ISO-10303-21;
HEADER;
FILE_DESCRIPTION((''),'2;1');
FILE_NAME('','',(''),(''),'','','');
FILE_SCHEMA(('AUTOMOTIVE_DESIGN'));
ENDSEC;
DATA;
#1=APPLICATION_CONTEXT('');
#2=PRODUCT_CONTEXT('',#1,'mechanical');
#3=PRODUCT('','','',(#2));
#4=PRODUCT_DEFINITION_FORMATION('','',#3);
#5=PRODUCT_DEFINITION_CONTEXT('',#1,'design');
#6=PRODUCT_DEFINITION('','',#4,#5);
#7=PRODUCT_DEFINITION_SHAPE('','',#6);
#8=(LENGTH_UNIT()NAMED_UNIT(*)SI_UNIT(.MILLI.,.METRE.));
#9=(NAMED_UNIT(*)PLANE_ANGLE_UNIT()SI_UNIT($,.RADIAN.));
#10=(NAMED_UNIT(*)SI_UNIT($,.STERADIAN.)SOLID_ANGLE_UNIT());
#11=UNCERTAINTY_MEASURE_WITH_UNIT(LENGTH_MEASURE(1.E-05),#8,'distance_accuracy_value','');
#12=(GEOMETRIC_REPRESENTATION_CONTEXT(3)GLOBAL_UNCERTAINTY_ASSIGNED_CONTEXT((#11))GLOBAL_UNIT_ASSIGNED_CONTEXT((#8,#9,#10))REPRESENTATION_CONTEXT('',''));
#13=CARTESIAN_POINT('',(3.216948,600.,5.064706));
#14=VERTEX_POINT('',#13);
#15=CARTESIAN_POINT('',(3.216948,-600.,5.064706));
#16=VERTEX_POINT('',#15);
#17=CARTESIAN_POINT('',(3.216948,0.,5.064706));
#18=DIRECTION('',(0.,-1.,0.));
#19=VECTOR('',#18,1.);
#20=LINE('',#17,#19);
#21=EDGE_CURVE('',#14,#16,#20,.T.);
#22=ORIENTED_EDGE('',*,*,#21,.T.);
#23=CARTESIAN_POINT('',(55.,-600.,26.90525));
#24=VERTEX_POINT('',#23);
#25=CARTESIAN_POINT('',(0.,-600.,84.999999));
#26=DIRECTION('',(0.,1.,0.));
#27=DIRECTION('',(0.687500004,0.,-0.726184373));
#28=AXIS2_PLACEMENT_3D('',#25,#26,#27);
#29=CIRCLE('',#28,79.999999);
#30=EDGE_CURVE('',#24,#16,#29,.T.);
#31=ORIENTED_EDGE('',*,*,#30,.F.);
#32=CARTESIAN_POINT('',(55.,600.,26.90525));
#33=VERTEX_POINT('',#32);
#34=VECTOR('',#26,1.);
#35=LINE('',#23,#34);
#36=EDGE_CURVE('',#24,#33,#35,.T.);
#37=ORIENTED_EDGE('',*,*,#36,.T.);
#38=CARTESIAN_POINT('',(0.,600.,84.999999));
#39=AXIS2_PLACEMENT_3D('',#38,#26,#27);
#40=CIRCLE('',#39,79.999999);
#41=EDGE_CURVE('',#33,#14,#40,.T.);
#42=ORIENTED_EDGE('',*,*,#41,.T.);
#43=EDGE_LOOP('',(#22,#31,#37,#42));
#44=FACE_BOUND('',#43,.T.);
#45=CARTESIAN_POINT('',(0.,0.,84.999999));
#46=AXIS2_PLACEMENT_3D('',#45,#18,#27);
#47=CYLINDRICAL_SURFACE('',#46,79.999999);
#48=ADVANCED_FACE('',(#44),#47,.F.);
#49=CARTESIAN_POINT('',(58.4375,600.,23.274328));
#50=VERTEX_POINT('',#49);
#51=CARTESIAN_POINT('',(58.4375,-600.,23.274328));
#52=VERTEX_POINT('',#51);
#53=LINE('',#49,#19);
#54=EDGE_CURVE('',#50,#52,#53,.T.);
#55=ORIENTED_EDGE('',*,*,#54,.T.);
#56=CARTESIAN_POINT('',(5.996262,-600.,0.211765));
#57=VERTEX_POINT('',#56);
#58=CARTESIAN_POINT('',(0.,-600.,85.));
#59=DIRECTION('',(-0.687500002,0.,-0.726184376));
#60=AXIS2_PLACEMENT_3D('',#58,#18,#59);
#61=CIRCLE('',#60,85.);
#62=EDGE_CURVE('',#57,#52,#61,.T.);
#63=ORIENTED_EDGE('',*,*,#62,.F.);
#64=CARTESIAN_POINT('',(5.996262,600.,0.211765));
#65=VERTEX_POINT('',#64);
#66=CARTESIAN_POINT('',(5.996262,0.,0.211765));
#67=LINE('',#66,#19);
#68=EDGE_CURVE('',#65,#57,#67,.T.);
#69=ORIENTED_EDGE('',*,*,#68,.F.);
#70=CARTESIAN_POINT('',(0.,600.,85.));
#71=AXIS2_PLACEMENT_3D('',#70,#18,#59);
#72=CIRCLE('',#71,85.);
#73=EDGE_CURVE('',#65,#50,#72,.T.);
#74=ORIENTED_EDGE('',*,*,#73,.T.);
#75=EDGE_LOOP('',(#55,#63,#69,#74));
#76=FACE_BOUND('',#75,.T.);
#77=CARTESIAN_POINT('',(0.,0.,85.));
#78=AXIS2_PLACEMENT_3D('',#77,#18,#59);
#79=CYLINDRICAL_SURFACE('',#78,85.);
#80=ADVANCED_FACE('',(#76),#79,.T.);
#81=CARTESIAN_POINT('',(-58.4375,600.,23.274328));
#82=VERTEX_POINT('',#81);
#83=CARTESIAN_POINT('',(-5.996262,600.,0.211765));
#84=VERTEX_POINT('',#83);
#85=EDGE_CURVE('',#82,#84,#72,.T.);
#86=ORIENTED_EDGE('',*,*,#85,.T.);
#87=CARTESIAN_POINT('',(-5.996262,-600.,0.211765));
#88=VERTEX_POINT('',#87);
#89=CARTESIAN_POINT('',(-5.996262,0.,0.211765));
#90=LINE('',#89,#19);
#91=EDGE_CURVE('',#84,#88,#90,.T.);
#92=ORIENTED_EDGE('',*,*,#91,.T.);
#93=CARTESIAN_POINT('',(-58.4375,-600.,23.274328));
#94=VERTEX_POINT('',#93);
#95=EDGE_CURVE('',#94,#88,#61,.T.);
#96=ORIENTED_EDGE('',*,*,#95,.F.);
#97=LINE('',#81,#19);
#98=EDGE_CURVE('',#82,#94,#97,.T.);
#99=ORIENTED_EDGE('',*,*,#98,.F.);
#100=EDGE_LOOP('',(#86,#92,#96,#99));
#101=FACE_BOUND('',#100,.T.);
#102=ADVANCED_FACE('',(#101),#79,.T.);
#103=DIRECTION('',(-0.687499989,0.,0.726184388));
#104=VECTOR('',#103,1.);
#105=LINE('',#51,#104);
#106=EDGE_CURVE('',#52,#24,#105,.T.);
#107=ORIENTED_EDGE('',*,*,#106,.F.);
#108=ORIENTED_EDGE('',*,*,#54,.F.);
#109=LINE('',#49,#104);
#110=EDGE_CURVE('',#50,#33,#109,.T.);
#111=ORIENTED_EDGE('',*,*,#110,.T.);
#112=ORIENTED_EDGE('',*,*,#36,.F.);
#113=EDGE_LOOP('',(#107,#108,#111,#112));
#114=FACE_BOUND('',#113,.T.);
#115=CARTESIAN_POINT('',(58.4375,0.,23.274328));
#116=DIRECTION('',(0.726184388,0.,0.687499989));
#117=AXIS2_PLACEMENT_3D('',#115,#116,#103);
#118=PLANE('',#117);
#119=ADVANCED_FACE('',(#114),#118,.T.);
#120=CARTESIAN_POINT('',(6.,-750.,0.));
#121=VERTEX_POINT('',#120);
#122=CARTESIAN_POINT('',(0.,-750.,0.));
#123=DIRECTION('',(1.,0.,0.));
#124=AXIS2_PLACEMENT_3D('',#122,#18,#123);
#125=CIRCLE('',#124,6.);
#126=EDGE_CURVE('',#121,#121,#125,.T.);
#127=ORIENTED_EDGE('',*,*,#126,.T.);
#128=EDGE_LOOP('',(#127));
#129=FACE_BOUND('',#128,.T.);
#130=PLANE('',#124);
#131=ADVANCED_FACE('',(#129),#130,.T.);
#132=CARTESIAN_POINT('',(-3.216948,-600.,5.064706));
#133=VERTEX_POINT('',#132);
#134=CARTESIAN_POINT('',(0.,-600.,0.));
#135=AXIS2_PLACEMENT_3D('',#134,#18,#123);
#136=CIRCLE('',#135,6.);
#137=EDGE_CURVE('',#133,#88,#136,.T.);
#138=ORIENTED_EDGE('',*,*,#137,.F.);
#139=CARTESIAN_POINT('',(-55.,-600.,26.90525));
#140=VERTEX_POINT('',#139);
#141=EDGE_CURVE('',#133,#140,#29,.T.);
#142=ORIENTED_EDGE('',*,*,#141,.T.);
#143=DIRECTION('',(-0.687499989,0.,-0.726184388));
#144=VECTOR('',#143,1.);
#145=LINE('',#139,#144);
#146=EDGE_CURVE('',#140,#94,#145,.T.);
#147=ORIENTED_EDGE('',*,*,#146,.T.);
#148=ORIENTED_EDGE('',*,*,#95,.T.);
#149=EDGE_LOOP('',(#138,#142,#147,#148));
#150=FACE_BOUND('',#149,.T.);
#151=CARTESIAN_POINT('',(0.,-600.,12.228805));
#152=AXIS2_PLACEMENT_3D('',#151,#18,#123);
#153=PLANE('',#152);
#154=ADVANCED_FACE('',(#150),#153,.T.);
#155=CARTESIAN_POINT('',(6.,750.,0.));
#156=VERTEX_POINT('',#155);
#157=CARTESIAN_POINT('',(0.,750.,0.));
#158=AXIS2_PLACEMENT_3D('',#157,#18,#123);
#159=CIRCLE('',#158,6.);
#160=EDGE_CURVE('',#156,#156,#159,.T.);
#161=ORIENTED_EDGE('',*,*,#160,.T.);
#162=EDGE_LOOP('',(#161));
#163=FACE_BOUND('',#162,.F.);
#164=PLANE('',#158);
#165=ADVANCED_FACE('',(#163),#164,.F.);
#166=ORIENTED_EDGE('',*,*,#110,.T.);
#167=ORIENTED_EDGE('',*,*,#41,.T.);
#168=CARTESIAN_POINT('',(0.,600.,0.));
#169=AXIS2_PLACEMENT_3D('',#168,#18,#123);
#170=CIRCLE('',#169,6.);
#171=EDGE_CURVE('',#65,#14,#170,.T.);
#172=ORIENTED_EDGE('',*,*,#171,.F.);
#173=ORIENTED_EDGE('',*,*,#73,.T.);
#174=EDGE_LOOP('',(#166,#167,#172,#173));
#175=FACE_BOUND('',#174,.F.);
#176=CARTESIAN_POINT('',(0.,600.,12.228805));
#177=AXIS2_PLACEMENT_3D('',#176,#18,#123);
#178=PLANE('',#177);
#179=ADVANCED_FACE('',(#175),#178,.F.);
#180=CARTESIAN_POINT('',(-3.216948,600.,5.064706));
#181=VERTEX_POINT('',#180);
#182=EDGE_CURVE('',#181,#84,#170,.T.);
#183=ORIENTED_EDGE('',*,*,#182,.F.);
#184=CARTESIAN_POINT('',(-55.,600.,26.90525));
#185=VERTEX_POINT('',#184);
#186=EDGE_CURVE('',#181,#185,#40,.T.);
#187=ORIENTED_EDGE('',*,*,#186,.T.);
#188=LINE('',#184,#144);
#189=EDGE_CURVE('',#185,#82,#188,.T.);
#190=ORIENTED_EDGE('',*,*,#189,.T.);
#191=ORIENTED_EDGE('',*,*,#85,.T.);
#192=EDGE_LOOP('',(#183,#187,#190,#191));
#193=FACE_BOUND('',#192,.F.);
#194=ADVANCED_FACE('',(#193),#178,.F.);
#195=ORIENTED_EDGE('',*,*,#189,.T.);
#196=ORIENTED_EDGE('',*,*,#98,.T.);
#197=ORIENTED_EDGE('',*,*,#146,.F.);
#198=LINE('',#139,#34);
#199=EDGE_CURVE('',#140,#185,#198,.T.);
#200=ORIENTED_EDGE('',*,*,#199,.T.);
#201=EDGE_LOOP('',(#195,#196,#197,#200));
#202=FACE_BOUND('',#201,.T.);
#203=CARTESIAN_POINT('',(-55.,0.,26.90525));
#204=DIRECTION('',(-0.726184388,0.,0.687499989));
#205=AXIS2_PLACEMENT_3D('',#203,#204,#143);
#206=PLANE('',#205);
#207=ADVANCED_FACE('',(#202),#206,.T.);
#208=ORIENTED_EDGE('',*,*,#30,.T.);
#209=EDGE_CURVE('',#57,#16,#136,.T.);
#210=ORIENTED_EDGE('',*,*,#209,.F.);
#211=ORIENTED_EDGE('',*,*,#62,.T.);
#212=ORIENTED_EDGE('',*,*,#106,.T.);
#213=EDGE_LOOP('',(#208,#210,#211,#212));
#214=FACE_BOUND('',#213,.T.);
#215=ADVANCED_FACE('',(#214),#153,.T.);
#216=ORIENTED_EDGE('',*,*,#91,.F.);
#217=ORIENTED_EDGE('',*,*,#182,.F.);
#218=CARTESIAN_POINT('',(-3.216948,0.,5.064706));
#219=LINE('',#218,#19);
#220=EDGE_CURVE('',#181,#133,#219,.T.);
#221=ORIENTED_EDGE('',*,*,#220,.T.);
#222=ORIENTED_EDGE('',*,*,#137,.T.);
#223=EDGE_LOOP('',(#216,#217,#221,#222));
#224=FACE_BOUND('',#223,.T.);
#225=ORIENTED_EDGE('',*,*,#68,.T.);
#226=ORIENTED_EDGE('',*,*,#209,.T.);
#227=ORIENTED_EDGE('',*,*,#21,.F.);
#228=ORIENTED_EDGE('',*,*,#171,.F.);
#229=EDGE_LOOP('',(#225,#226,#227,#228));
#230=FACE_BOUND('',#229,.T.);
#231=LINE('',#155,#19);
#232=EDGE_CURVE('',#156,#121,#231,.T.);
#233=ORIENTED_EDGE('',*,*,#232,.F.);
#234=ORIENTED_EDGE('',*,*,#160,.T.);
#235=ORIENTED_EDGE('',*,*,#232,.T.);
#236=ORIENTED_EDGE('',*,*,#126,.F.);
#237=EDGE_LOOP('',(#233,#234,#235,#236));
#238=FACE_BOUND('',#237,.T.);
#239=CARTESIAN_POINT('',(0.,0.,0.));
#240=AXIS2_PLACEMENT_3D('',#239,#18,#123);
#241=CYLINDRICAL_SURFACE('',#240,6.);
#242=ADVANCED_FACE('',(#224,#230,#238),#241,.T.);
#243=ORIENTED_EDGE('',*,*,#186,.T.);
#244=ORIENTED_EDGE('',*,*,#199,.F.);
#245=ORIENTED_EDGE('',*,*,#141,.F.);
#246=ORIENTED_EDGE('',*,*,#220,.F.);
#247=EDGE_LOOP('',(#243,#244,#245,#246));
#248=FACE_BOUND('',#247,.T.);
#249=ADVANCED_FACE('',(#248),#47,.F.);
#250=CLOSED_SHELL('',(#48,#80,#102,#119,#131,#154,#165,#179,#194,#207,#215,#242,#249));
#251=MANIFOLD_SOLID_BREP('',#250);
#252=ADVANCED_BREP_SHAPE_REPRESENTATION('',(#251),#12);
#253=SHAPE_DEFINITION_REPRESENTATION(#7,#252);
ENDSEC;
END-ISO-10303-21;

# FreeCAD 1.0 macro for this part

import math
import FreeCAD as App
import Part
import Sketcher

V = App.Vector
Q = App.Units.Quantity

doc = App.newDocument("Part")
params = doc.addObject("Spreadsheet::Sheet", "Params")
for row, (alias, value) in enumerate([
    ("sketch1_diameter", "12 mm"),
    ("pad1_length", "1500 mm"),
    ("sketch2_radius", "85 mm"),
    ("sketch2_radius2", "79.999999 mm"),
    ("pad2_length", "1200 mm"),
], start=1):
    params.set(f"A{row}", alias)
    params.set(f"B{row}", "=" + value)
    params.setAlias(f"B{row}", alias)

body = doc.addObject("PartDesign::Body", "Body")

sketch1 = body.newObject("Sketcher::SketchObject", "Sketch")
sketch1.AttachmentSupport = (doc.getObject("XZ_Plane"), [""])
sketch1.MapMode = "FlatFace"
sketch1.addGeometry(Part.Circle(V(0, 0, 0), V(0, 0, 1), 6), False)
sketch1.addConstraint(Sketcher.Constraint("Coincident", 0, 3, -1, 1))
sketch1.addConstraint(Sketcher.Constraint("Diameter", 0, Q("12 mm")))
sketch1.setExpression("Constraints[1]", "Params.sketch1_diameter")
pad1 = body.newObject("PartDesign::Pad", "Pad")
pad1.Profile = sketch1
pad1.setExpression("Length", "Params.pad1_length")
pad1.Midplane = True

sketch2 = body.newObject("Sketcher::SketchObject", "Sketch001")
sketch2.AttachmentSupport = (doc.getObject("XZ_Plane"), [""])
sketch2.MapMode = "FlatFace"
sketch2.addGeometry(Part.LineSegment(V(-55, 27, 0), V(-58, 23, 0)), False)
sketch2.addGeometry(Part.ArcOfCircle(Part.Circle(V(0, 85, 0), V(0, 0, 1), 85), math.radians(-133), math.radians(-47)), False)
sketch2.addGeometry(Part.LineSegment(V(58, 23, 0), V(55, 27, 0)), False)
sketch2.addGeometry(Part.ArcOfCircle(Part.Circle(V(0, 85, 0), V(0, 0, 1), 80), math.radians(-133), math.radians(-47)), False)
sketch2.addConstraint(Sketcher.Constraint("Coincident", 0, 2, 1, 1))
sketch2.addConstraint(Sketcher.Constraint("Coincident", 1, 2, 2, 1))
sketch2.addConstraint(Sketcher.Constraint("Coincident", 2, 2, 3, 2))
sketch2.addConstraint(Sketcher.Constraint("Coincident", 3, 1, 0, 1))
sketch2.addConstraint(Sketcher.Constraint("Coincident", 3, 3, 1, 3))
sketch2.addConstraint(Sketcher.Constraint("Symmetric", 0, 2, 1, 2, -2))
sketch2.addConstraint(Sketcher.Constraint("Horizontal", 2, 2, 3, 1))
sketch2.addConstraint(Sketcher.Constraint("Radius", 1, Q("85 mm")))
sketch2.addConstraint(Sketcher.Constraint("Radius", 3, Q("79.999999 mm")))
sketch2.addConstraint(Sketcher.Constraint("DistanceY", -1, 1, 1, 3, Q("85 mm")))
sketch2.addConstraint(Sketcher.Constraint("DistanceX", -1, 1, 2, 2, Q("55 mm")))
sketch2.addConstraint(Sketcher.Constraint("DistanceX", 0, 2, 1, 2, Q("116.875 mm")))
sketch2.setExpression("Constraints[7]", "Params.sketch2_radius")
sketch2.setExpression("Constraints[8]", "Params.sketch2_radius2")
pad2 = body.newObject("PartDesign::Pad", "Pad001")
pad2.Profile = sketch2
pad2.setExpression("Length", "Params.pad2_length")
pad2.Midplane = True

doc.recompute()
